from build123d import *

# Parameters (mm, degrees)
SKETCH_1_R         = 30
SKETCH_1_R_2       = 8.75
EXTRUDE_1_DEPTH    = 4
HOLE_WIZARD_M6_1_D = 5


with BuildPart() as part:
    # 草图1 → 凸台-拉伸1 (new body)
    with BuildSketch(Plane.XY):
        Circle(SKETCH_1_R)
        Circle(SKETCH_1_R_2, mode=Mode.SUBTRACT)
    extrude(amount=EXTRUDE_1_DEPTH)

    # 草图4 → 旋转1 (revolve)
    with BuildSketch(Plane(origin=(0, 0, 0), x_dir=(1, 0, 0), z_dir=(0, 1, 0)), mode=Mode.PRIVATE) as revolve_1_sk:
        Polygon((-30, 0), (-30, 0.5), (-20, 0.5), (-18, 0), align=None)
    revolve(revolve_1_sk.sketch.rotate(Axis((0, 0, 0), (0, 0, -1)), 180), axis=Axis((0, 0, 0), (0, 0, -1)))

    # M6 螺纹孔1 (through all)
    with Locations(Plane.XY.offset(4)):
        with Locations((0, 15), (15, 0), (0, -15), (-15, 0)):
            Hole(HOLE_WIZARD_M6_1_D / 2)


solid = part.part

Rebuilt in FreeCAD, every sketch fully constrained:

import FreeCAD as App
import Part
import Sketcher

V = App.Vector
Q = App.Units.Quantity

doc = App.newDocument("Part")
body = doc.addObject("PartDesign::Body", "Body")

sketch1 = body.newObject("Sketcher::SketchObject", "Sketch")
sketch1.AttachmentSupport = (doc.getObject("XY_Plane"), [""])
sketch1.MapMode = "FlatFace"
sketch1.addGeometry([
    Part.Circle(V(0, 0, 0), V(0, 0, 1), 30),
    Part.Circle(V(0, 0, 0), V(0, 0, 1), 9),
], False)
sketch1.addConstraint([
    Sketcher.Constraint("Coincident", 0, 3, -1, 1),
    Sketcher.Constraint("Coincident", 1, 3, -1, 1),
    Sketcher.Constraint("Diameter", 0, Q("60 mm")),
    Sketcher.Constraint("Diameter", 1, Q("17.5 mm")),
])
pad1 = body.newObject("PartDesign::Pad", "Pad")
pad1.Profile = sketch1
pad1.Length = 4

sketch2 = body.newObject("Sketcher::SketchObject", "Sketch001")
sketch2.AttachmentSupport = (doc.getObject("XZ_Plane"), [""])
sketch2.MapMode = "FlatFace"
sketch2.addGeometry([
    Part.LineSegment(V(-30, -0.5, 0), V(-30, 0, 0)),
    Part.LineSegment(V(-30, 0, 0), V(-18, 0, 0)),
    Part.LineSegment(V(-18, 0, 0), V(-20, -0.5, 0)),
    Part.LineSegment(V(-20, -0.5, 0), V(-30, -0.5, 0)),
], False)
sketch2.addConstraint([
    Sketcher.Constraint("Coincident", 0, 2, 1, 1),
    Sketcher.Constraint("Coincident", 1, 2, 2, 1),
    Sketcher.Constraint("Coincident", 2, 2, 3, 1),
    Sketcher.Constraint("Coincident", 3, 2, 0, 1),
    Sketcher.Constraint("Vertical", 0),
    Sketcher.Constraint("Horizontal", 1),
    Sketcher.Constraint("Horizontal", 3),
    Sketcher.Constraint("PointOnObject", 0, 2, -1),
    Sketcher.Constraint("DistanceX", 1, 1, 1, 2, Q("12 mm")),
    Sketcher.Constraint("DistanceX", 3, 2, 3, 1, Q("10 mm")),
    Sketcher.Constraint("DistanceY", 0, 1, 0, 2, Q("0.5 mm")),
    Sketcher.Constraint("DistanceX", 0, 2, -1, 1, Q("30 mm")),
])
revolution = body.newObject("PartDesign::Revolution", "Revolution")
revolution.Profile = sketch2
revolution.ReferenceAxis = (sketch2, ["V_Axis"])
revolution.Angle = 360

sketch3 = body.newObject("Sketcher::SketchObject", "Sketch002")
sketch3.AttachmentSupport = (doc.getObject("XY_Plane"), [""])
sketch3.MapMode = "FlatFace"
sketch3.AttachmentOffset = App.Placement(V(0, 0, 4), App.Rotation())
sketch3.addGeometry([
    Part.Circle(V(0, 15, 0), V(0, 0, 1), 2.5),
    Part.Circle(V(15, 0, 0), V(0, 0, 1), 2.5),
    Part.Circle(V(0, -15, 0), V(0, 0, 1), 2.5),
    Part.Circle(V(-15, 0, 0), V(0, 0, 1), 2.5),
], False)
sketch3.addConstraint([
    Sketcher.Constraint("Equal", 0, 1),
    Sketcher.Constraint("Equal", 1, 2),
    Sketcher.Constraint("Equal", 2, 3),
    Sketcher.Constraint("Symmetric", 0, 3, 2, 3, -1, 1),
    Sketcher.Constraint("Symmetric", 1, 3, 3, 3, -1, 1),
    Sketcher.Constraint("PointOnObject", 0, 3, -2),
    Sketcher.Constraint("PointOnObject", 1, 3, -1),
    Sketcher.Constraint("Diameter", 0, Q("5 mm")),
    Sketcher.Constraint("DistanceY", -1, 1, 0, 3, Q("15 mm")),
    Sketcher.Constraint("DistanceX", -1, 1, 1, 3, Q("15 mm")),
])
doc.recompute()
hole = body.newObject("PartDesign::Hole", "Hole")
hole.Profile = sketch3
hole.ThreadType = "None"
hole.Diameter = 5
hole.DepthType = "ThroughAll"

doc.recompute()
